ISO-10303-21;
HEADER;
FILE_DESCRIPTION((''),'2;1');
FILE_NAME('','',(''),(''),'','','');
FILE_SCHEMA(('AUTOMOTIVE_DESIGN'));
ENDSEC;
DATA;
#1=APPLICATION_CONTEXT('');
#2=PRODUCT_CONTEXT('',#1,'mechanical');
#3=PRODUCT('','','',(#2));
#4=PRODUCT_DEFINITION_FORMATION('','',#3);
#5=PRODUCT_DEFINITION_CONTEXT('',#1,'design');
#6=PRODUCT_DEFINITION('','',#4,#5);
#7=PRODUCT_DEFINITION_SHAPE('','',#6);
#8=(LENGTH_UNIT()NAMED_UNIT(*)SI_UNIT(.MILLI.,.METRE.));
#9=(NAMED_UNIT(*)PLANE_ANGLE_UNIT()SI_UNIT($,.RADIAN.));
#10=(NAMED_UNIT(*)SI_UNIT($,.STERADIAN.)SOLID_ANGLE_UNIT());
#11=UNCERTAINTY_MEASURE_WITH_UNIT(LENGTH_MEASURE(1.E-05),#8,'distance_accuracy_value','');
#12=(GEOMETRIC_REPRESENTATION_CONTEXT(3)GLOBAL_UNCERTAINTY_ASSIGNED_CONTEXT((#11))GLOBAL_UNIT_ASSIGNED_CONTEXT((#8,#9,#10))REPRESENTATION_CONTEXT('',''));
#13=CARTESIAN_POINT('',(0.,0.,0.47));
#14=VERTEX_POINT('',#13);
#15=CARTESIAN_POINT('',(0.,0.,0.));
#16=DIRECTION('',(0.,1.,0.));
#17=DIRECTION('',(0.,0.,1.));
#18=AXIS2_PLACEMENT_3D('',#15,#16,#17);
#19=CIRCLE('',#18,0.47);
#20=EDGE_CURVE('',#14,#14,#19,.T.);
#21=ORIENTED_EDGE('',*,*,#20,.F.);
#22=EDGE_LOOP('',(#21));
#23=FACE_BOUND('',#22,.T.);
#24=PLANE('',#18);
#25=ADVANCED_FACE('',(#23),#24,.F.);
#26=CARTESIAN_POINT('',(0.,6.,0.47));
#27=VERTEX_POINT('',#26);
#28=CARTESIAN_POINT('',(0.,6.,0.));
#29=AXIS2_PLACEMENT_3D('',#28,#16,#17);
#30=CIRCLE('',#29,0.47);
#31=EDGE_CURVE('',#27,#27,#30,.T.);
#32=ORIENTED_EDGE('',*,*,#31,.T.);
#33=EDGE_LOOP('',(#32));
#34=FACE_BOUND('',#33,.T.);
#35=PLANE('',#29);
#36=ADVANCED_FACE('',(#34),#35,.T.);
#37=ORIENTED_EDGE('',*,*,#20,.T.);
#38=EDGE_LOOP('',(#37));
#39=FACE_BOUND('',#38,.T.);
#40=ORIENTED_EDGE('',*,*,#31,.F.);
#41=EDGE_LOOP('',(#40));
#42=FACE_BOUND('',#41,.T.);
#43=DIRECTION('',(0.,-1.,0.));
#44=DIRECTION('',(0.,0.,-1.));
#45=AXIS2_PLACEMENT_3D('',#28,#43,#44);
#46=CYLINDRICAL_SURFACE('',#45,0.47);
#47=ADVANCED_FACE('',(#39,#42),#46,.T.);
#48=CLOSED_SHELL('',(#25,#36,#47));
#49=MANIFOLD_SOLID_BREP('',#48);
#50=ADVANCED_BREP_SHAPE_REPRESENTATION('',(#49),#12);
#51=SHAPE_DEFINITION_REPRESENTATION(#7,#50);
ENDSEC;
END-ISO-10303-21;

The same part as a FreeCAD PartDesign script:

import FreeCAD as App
import Part
import Sketcher

V = App.Vector
Q = App.Units.Quantity

doc = App.newDocument("Part")
body = doc.addObject("PartDesign::Body", "Body")

sketch1 = doc.addObject("Sketcher::SketchObject", "Sketch")
body.addObject(sketch1)
sketch1.AttachmentSupport = (doc.XZ_Plane, [""])
sketch1.MapMode = "FlatFace"
sketch1.addGeometry(Part.Circle(V(0, 0, 0), V(0, 0, 1), 0.47), False)
sketch1.addConstraint([
    Sketcher.Constraint("Coincident", 0, 3, -1, 1),
    Sketcher.Constraint("Diameter", 0, Q("0.94 mm")),
])
pad1 = doc.addObject("PartDesign::Pad", "Pad")
body.addObject(pad1)
pad1.Profile = sketch1
pad1.Length = 6
pad1.Reversed = True

doc.recompute()
